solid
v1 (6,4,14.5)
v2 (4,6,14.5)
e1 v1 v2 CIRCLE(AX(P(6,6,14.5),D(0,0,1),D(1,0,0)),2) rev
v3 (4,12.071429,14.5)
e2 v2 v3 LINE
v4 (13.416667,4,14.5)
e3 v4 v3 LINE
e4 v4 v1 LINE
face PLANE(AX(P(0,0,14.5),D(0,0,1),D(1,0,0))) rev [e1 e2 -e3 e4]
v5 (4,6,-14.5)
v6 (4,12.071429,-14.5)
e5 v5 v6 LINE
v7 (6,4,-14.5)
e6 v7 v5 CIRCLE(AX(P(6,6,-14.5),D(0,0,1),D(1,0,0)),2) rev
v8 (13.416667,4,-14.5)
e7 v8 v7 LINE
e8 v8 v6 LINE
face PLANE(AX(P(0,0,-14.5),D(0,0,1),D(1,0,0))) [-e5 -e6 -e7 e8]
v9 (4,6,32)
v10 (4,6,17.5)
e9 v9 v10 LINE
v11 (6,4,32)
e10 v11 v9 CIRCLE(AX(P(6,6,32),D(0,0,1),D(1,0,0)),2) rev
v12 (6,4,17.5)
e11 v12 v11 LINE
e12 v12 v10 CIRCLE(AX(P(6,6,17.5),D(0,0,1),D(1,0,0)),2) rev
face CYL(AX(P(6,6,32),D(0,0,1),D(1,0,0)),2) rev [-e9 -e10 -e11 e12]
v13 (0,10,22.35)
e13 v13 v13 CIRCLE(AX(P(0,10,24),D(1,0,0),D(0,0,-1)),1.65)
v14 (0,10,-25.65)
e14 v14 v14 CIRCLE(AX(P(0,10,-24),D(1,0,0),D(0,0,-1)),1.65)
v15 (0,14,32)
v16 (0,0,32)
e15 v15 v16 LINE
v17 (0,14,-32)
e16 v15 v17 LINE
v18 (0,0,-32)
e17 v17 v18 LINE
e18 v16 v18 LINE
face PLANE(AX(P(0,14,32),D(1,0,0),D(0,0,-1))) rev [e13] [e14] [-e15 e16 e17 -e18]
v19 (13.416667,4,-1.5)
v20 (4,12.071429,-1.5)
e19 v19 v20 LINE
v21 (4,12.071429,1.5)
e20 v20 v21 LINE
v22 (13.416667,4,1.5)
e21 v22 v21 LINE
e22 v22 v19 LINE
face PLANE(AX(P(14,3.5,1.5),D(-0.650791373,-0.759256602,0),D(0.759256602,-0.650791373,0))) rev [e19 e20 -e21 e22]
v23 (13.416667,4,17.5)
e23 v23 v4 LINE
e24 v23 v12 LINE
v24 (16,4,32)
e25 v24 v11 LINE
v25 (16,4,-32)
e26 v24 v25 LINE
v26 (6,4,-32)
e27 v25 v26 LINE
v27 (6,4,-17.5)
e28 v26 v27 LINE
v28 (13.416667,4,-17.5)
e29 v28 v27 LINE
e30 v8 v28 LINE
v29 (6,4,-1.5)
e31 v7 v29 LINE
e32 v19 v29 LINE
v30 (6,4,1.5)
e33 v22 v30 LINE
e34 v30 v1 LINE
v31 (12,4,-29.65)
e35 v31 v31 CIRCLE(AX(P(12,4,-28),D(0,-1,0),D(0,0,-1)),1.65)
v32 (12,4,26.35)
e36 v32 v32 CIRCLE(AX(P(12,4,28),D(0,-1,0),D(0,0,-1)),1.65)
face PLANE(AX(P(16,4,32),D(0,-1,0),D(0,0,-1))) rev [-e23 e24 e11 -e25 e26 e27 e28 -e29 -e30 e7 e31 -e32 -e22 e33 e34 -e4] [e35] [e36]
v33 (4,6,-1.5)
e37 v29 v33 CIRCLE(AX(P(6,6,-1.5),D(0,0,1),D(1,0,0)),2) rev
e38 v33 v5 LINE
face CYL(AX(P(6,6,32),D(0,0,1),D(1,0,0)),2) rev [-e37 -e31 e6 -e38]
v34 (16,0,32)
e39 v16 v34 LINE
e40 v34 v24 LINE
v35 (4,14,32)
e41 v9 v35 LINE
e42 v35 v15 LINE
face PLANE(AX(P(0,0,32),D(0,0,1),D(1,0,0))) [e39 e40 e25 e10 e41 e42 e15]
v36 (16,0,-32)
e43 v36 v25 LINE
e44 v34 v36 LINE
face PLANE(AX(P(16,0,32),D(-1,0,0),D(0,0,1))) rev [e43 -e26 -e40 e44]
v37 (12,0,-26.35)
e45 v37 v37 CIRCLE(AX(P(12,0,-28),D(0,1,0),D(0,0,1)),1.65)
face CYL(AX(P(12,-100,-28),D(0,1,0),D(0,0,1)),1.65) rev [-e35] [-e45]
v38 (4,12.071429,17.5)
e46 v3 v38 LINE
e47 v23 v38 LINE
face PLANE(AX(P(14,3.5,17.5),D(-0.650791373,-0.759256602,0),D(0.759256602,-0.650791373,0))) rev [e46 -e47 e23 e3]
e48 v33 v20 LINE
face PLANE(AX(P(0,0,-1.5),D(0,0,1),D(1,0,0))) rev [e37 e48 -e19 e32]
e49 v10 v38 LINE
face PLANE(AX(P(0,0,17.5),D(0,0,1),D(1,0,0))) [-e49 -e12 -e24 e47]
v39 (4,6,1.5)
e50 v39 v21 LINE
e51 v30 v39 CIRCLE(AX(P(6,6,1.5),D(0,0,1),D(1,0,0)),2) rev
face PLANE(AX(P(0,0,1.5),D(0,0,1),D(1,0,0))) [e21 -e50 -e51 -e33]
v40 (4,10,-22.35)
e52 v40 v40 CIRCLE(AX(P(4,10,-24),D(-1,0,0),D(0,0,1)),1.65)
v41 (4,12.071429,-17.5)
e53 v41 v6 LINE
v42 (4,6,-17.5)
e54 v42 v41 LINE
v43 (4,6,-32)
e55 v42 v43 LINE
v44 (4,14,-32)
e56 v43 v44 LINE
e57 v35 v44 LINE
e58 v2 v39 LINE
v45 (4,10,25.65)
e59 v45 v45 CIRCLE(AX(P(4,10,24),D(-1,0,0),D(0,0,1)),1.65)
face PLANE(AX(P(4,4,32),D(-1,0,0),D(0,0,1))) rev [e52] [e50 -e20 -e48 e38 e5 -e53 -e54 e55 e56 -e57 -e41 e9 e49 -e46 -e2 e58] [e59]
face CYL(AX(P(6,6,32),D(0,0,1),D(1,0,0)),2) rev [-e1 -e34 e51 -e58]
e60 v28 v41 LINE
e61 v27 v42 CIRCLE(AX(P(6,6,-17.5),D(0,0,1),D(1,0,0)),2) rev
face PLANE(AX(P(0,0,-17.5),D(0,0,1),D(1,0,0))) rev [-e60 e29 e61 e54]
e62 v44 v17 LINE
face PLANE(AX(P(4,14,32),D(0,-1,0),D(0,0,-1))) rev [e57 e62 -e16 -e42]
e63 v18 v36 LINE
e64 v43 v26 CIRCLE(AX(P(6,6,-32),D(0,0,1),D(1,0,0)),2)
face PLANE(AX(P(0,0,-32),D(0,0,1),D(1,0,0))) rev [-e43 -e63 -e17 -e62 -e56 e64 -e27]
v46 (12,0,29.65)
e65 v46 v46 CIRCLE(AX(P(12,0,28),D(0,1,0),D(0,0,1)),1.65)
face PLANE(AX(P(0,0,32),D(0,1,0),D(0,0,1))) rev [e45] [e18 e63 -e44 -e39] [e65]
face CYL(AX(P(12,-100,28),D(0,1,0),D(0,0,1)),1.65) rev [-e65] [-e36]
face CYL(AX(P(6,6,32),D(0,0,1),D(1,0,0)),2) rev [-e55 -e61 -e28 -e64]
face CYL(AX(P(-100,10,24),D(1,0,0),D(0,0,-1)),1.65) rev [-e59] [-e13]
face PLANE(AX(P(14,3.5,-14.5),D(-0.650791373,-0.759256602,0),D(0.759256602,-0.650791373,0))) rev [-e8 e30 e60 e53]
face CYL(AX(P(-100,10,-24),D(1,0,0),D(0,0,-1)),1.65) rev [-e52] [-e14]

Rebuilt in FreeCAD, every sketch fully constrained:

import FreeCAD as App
import Part
import Sketcher
Q = App.Units.Quantity


def edges_at(feature, points):
    """Names of the edges that pass closest to the given points."""
    edges = feature.Shape.Edges
    near = lambda p: min(range(len(edges)), key=lambda i: edges[i].distToShape(Part.Vertex(*p))[0])
    return sorted({f"Edge{near(p) + 1}" for p in points})


def add_polygon(sketch, points):
    """Adds a closed chain of lines whose ends are joined by coincident constraints."""
    first, n = sketch.GeometryCount, len(points)
    for a, b in zip(points, points[1:] + points[:1]):
        sketch.addGeometry(Part.LineSegment(App.Vector(*a, 0), App.Vector(*b, 0)), False)
    for i in range(n):
        sketch.addConstraint(Sketcher.Constraint("Coincident", first + i, 2, first + (i + 1) % n, 1))

doc = App.newDocument("Part")
params = doc.addObject("Spreadsheet::Sheet", "Params")
for row, (alias, value) in enumerate([
    ("sketch1_width", "16 mm"),
    ("sketch1_width2", "12 mm"),
    ("sketch1_height", "10 mm"),
    ("pad1_length", "64 mm"),
    ("sketch2_diameter", "3.3 mm"),
    ("sketch3_diameter", "3.3 mm"),
    ("sketch4_diameter", "3.3 mm"),
    ("sketch5_diameter", "3.3 mm"),
    ("fillet_radius", "2 mm"),
    ("sketch6_height", "9 mm"),
    ("sketch6_width", "10.5 mm"),
    ("pad2_length", "3 mm"),
    ("sketch7_height", "9 mm"),
    ("sketch7_width", "10.5 mm"),
    ("pad3_length", "3 mm"),
    ("sketch8_height", "9 mm"),
    ("sketch8_width", "10.5 mm"),
    ("pad4_length", "3 mm"),
], start=1):
    params.set(f"A{row}", alias)
    params.set(f"B{row}", "=" + value)
    params.setAlias(f"B{row}", alias)

body = doc.addObject("PartDesign::Body", "Body")

# Sketch on XY plane
sketch1 = body.newObject("Sketcher::SketchObject", "Sketch")
sketch1.AttachmentSupport = (doc.getObject("XY_Plane"), [""])
sketch1.MapMode = "FlatFace"
sketch1.AttachmentOffset = App.Placement(App.Vector(0, 0, -32), App.Rotation())
add_polygon(sketch1, [(0, 0), (16, 0), (16, 4), (4, 4), (4, 14), (0, 14)])  # lines 0-5
sketch1.addConstraint([
    Sketcher.Constraint("Horizontal", 0),
    Sketcher.Constraint("Vertical", 1),
    Sketcher.Constraint("Horizontal", 2),
    Sketcher.Constraint("Vertical", 3),
    Sketcher.Constraint("Horizontal", 4),
    Sketcher.Constraint("Vertical", 5),
    Sketcher.Constraint("Coincident", 5, 2, -1, 1),
    Sketcher.Constraint("Equal", 4, 1),
    Sketcher.Constraint("DistanceX", 0, 1, 0, 2, Q("16 mm")),
    Sketcher.Constraint("DistanceX", 2, 2, 2, 1, Q("12 mm")),
    Sketcher.Constraint("DistanceY", 3, 1, 3, 2, Q("10 mm")),
])
sketch1.setExpression("Constraints[14]", "Params.sketch1_width")
sketch1.setExpression("Constraints[15]", "Params.sketch1_width2")
sketch1.setExpression("Constraints[16]", "Params.sketch1_height")
pad1 = body.newObject("PartDesign::Pad", "Pad")
pad1.Profile = sketch1
pad1.setExpression("Length", "Params.pad1_length")

# Sketch on YZ plane
sketch2 = body.newObject("Sketcher::SketchObject", "Sketch001")
sketch2.AttachmentSupport = (doc.getObject("YZ_Plane"), [""])
sketch2.MapMode = "FlatFace"
sketch2.addGeometry(Part.Circle(App.Vector(10, -24, 0), App.Vector(0, 0, 1), 1.6), False)
sketch2.addConstraint([
    Sketcher.Constraint("Diameter", 0, Q("3.3 mm")),
    Sketcher.Constraint("DistanceX", -1, 1, 0, 3, Q("10 mm")),
    Sketcher.Constraint("DistanceY", 0, 3, -1, 1, Q("24 mm")),
])
sketch2.setExpression("Constraints[0]", "Params.sketch2_diameter")
pocket1 = body.newObject("PartDesign::Pocket", "Pocket")
pocket1.Profile = sketch2
pocket1.Type = "ThroughAll"
pocket1.Midplane = True

# Sketch on XZ plane
sketch3 = body.newObject("Sketcher::SketchObject", "Sketch002")
sketch3.AttachmentSupport = (doc.getObject("XZ_Plane"), [""])
sketch3.MapMode = "FlatFace"
sketch3.addGeometry(Part.Circle(App.Vector(12, -28, 0), App.Vector(0, 0, 1), 1.6), False)
sketch3.addConstraint([
    Sketcher.Constraint("Diameter", 0, Q("3.3 mm")),
    Sketcher.Constraint("DistanceX", -1, 1, 0, 3, Q("12 mm")),
    Sketcher.Constraint("DistanceY", 0, 3, -1, 1, Q("28 mm")),
])
sketch3.setExpression("Constraints[0]", "Params.sketch3_diameter")
pocket2 = body.newObject("PartDesign::Pocket", "Pocket001")
pocket2.Profile = sketch3
pocket2.Type = "ThroughAll"
pocket2.Midplane = True

# Sketch on YZ plane
sketch4 = body.newObject("Sketcher::SketchObject", "Sketch003")
sketch4.AttachmentSupport = (doc.getObject("YZ_Plane"), [""])
sketch4.MapMode = "FlatFace"
sketch4.addGeometry(Part.Circle(App.Vector(10, 24, 0), App.Vector(0, 0, 1), 1.6), False)
sketch4.addConstraint([
    Sketcher.Constraint("Diameter", 0, Q("3.3 mm")),
    Sketcher.Constraint("DistanceX", -1, 1, 0, 3, Q("10 mm")),
    Sketcher.Constraint("DistanceY", -1, 1, 0, 3, Q("24 mm")),
])
sketch4.setExpression("Constraints[0]", "Params.sketch4_diameter")
pocket3 = body.newObject("PartDesign::Pocket", "Pocket002")
pocket3.Profile = sketch4
pocket3.Type = "ThroughAll"
pocket3.Midplane = True

# Sketch on XZ plane
sketch5 = body.newObject("Sketcher::SketchObject", "Sketch004")
sketch5.AttachmentSupport = (doc.getObject("XZ_Plane"), [""])
sketch5.MapMode = "FlatFace"
sketch5.addGeometry(Part.Circle(App.Vector(12, 28, 0), App.Vector(0, 0, 1), 1.6), False)
sketch5.addConstraint([
    Sketcher.Constraint("Diameter", 0, Q("3.3 mm")),
    Sketcher.Constraint("DistanceX", -1, 1, 0, 3, Q("12 mm")),
    Sketcher.Constraint("DistanceY", -1, 1, 0, 3, Q("28 mm")),
])
sketch5.setExpression("Constraints[0]", "Params.sketch5_diameter")
pocket4 = body.newObject("PartDesign::Pocket", "Pocket003")
pocket4.Profile = sketch5
pocket4.Type = "ThroughAll"
pocket4.Midplane = True
doc.recompute()

fillet = body.newObject("PartDesign::Fillet", "Fillet")
fillet.Base = (pocket4, edges_at(pocket4, [(4, 4, 0)]))
fillet.setExpression("Radius", "Params.fillet_radius")

# Sketch on XY plane
sketch6 = body.newObject("Sketcher::SketchObject", "Sketch005")
sketch6.AttachmentSupport = (doc.getObject("XY_Plane"), [""])
sketch6.MapMode = "FlatFace"
sketch6.AttachmentOffset = App.Placement(App.Vector(0, 0, -17.5), App.Rotation())
add_polygon(sketch6, [(4, 4), (14, 4), (4, 12)])  # lines 0-2
sketch6.addConstraint([
    Sketcher.Constraint("Horizontal", 0),
    Sketcher.Constraint("Vertical", 2),
    Sketcher.Constraint("DistanceY", 2, 2, 2, 1, Q("9 mm")),
    Sketcher.Constraint("DistanceX", 0, 1, 0, 2, Q("10.5 mm")),
    Sketcher.Constraint("DistanceX", -1, 1, 0, 2, Q("14 mm")),
    Sketcher.Constraint("DistanceY", -1, 1, 0, 2, Q("3.5 mm")),
])
sketch6.setExpression("Constraints[5]", "Params.sketch6_height")
sketch6.setExpression("Constraints[6]", "Params.sketch6_width")
pad2 = body.newObject("PartDesign::Pad", "Pad001")
pad2.Profile = sketch6
pad2.setExpression("Length", "Params.pad2_length")

# Sketch on XY plane
sketch7 = body.newObject("Sketcher::SketchObject", "Sketch006")
sketch7.AttachmentSupport = (doc.getObject("XY_Plane"), [""])
sketch7.MapMode = "FlatFace"
sketch7.AttachmentOffset = App.Placement(App.Vector(0, 0, -1.5), App.Rotation())
add_polygon(sketch7, [(4, 4), (14, 4), (4, 12)])  # lines 0-2
sketch7.addConstraint([
    Sketcher.Constraint("Horizontal", 0),
    Sketcher.Constraint("Vertical", 2),
    Sketcher.Constraint("DistanceY", 2, 2, 2, 1, Q("9 mm")),
    Sketcher.Constraint("DistanceX", 0, 1, 0, 2, Q("10.5 mm")),
    Sketcher.Constraint("DistanceX", -1, 1, 0, 2, Q("14 mm")),
    Sketcher.Constraint("DistanceY", -1, 1, 0, 2, Q("3.5 mm")),
])
sketch7.setExpression("Constraints[5]", "Params.sketch7_height")
sketch7.setExpression("Constraints[6]", "Params.sketch7_width")
pad3 = body.newObject("PartDesign::Pad", "Pad002")
pad3.Profile = sketch7
pad3.setExpression("Length", "Params.pad3_length")

# Sketch on XY plane
sketch8 = body.newObject("Sketcher::SketchObject", "Sketch007")
sketch8.AttachmentSupport = (doc.getObject("XY_Plane"), [""])
sketch8.MapMode = "FlatFace"
sketch8.AttachmentOffset = App.Placement(App.Vector(0, 0, 14.5), App.Rotation())
add_polygon(sketch8, [(4, 4), (14, 4), (4, 12)])  # lines 0-2
sketch8.addConstraint([
    Sketcher.Constraint("Horizontal", 0),
    Sketcher.Constraint("Vertical", 2),
    Sketcher.Constraint("DistanceY", 2, 2, 2, 1, Q("9 mm")),
    Sketcher.Constraint("DistanceX", 0, 1, 0, 2, Q("10.5 mm")),
    Sketcher.Constraint("DistanceX", -1, 1, 0, 2, Q("14 mm")),
    Sketcher.Constraint("DistanceY", -1, 1, 0, 2, Q("3.5 mm")),
])
sketch8.setExpression("Constraints[5]", "Params.sketch8_height")
sketch8.setExpression("Constraints[6]", "Params.sketch8_width")
pad4 = body.newObject("PartDesign::Pad", "Pad003")
pad4.Profile = sketch8
pad4.setExpression("Length", "Params.pad4_length")

doc.recompute()
